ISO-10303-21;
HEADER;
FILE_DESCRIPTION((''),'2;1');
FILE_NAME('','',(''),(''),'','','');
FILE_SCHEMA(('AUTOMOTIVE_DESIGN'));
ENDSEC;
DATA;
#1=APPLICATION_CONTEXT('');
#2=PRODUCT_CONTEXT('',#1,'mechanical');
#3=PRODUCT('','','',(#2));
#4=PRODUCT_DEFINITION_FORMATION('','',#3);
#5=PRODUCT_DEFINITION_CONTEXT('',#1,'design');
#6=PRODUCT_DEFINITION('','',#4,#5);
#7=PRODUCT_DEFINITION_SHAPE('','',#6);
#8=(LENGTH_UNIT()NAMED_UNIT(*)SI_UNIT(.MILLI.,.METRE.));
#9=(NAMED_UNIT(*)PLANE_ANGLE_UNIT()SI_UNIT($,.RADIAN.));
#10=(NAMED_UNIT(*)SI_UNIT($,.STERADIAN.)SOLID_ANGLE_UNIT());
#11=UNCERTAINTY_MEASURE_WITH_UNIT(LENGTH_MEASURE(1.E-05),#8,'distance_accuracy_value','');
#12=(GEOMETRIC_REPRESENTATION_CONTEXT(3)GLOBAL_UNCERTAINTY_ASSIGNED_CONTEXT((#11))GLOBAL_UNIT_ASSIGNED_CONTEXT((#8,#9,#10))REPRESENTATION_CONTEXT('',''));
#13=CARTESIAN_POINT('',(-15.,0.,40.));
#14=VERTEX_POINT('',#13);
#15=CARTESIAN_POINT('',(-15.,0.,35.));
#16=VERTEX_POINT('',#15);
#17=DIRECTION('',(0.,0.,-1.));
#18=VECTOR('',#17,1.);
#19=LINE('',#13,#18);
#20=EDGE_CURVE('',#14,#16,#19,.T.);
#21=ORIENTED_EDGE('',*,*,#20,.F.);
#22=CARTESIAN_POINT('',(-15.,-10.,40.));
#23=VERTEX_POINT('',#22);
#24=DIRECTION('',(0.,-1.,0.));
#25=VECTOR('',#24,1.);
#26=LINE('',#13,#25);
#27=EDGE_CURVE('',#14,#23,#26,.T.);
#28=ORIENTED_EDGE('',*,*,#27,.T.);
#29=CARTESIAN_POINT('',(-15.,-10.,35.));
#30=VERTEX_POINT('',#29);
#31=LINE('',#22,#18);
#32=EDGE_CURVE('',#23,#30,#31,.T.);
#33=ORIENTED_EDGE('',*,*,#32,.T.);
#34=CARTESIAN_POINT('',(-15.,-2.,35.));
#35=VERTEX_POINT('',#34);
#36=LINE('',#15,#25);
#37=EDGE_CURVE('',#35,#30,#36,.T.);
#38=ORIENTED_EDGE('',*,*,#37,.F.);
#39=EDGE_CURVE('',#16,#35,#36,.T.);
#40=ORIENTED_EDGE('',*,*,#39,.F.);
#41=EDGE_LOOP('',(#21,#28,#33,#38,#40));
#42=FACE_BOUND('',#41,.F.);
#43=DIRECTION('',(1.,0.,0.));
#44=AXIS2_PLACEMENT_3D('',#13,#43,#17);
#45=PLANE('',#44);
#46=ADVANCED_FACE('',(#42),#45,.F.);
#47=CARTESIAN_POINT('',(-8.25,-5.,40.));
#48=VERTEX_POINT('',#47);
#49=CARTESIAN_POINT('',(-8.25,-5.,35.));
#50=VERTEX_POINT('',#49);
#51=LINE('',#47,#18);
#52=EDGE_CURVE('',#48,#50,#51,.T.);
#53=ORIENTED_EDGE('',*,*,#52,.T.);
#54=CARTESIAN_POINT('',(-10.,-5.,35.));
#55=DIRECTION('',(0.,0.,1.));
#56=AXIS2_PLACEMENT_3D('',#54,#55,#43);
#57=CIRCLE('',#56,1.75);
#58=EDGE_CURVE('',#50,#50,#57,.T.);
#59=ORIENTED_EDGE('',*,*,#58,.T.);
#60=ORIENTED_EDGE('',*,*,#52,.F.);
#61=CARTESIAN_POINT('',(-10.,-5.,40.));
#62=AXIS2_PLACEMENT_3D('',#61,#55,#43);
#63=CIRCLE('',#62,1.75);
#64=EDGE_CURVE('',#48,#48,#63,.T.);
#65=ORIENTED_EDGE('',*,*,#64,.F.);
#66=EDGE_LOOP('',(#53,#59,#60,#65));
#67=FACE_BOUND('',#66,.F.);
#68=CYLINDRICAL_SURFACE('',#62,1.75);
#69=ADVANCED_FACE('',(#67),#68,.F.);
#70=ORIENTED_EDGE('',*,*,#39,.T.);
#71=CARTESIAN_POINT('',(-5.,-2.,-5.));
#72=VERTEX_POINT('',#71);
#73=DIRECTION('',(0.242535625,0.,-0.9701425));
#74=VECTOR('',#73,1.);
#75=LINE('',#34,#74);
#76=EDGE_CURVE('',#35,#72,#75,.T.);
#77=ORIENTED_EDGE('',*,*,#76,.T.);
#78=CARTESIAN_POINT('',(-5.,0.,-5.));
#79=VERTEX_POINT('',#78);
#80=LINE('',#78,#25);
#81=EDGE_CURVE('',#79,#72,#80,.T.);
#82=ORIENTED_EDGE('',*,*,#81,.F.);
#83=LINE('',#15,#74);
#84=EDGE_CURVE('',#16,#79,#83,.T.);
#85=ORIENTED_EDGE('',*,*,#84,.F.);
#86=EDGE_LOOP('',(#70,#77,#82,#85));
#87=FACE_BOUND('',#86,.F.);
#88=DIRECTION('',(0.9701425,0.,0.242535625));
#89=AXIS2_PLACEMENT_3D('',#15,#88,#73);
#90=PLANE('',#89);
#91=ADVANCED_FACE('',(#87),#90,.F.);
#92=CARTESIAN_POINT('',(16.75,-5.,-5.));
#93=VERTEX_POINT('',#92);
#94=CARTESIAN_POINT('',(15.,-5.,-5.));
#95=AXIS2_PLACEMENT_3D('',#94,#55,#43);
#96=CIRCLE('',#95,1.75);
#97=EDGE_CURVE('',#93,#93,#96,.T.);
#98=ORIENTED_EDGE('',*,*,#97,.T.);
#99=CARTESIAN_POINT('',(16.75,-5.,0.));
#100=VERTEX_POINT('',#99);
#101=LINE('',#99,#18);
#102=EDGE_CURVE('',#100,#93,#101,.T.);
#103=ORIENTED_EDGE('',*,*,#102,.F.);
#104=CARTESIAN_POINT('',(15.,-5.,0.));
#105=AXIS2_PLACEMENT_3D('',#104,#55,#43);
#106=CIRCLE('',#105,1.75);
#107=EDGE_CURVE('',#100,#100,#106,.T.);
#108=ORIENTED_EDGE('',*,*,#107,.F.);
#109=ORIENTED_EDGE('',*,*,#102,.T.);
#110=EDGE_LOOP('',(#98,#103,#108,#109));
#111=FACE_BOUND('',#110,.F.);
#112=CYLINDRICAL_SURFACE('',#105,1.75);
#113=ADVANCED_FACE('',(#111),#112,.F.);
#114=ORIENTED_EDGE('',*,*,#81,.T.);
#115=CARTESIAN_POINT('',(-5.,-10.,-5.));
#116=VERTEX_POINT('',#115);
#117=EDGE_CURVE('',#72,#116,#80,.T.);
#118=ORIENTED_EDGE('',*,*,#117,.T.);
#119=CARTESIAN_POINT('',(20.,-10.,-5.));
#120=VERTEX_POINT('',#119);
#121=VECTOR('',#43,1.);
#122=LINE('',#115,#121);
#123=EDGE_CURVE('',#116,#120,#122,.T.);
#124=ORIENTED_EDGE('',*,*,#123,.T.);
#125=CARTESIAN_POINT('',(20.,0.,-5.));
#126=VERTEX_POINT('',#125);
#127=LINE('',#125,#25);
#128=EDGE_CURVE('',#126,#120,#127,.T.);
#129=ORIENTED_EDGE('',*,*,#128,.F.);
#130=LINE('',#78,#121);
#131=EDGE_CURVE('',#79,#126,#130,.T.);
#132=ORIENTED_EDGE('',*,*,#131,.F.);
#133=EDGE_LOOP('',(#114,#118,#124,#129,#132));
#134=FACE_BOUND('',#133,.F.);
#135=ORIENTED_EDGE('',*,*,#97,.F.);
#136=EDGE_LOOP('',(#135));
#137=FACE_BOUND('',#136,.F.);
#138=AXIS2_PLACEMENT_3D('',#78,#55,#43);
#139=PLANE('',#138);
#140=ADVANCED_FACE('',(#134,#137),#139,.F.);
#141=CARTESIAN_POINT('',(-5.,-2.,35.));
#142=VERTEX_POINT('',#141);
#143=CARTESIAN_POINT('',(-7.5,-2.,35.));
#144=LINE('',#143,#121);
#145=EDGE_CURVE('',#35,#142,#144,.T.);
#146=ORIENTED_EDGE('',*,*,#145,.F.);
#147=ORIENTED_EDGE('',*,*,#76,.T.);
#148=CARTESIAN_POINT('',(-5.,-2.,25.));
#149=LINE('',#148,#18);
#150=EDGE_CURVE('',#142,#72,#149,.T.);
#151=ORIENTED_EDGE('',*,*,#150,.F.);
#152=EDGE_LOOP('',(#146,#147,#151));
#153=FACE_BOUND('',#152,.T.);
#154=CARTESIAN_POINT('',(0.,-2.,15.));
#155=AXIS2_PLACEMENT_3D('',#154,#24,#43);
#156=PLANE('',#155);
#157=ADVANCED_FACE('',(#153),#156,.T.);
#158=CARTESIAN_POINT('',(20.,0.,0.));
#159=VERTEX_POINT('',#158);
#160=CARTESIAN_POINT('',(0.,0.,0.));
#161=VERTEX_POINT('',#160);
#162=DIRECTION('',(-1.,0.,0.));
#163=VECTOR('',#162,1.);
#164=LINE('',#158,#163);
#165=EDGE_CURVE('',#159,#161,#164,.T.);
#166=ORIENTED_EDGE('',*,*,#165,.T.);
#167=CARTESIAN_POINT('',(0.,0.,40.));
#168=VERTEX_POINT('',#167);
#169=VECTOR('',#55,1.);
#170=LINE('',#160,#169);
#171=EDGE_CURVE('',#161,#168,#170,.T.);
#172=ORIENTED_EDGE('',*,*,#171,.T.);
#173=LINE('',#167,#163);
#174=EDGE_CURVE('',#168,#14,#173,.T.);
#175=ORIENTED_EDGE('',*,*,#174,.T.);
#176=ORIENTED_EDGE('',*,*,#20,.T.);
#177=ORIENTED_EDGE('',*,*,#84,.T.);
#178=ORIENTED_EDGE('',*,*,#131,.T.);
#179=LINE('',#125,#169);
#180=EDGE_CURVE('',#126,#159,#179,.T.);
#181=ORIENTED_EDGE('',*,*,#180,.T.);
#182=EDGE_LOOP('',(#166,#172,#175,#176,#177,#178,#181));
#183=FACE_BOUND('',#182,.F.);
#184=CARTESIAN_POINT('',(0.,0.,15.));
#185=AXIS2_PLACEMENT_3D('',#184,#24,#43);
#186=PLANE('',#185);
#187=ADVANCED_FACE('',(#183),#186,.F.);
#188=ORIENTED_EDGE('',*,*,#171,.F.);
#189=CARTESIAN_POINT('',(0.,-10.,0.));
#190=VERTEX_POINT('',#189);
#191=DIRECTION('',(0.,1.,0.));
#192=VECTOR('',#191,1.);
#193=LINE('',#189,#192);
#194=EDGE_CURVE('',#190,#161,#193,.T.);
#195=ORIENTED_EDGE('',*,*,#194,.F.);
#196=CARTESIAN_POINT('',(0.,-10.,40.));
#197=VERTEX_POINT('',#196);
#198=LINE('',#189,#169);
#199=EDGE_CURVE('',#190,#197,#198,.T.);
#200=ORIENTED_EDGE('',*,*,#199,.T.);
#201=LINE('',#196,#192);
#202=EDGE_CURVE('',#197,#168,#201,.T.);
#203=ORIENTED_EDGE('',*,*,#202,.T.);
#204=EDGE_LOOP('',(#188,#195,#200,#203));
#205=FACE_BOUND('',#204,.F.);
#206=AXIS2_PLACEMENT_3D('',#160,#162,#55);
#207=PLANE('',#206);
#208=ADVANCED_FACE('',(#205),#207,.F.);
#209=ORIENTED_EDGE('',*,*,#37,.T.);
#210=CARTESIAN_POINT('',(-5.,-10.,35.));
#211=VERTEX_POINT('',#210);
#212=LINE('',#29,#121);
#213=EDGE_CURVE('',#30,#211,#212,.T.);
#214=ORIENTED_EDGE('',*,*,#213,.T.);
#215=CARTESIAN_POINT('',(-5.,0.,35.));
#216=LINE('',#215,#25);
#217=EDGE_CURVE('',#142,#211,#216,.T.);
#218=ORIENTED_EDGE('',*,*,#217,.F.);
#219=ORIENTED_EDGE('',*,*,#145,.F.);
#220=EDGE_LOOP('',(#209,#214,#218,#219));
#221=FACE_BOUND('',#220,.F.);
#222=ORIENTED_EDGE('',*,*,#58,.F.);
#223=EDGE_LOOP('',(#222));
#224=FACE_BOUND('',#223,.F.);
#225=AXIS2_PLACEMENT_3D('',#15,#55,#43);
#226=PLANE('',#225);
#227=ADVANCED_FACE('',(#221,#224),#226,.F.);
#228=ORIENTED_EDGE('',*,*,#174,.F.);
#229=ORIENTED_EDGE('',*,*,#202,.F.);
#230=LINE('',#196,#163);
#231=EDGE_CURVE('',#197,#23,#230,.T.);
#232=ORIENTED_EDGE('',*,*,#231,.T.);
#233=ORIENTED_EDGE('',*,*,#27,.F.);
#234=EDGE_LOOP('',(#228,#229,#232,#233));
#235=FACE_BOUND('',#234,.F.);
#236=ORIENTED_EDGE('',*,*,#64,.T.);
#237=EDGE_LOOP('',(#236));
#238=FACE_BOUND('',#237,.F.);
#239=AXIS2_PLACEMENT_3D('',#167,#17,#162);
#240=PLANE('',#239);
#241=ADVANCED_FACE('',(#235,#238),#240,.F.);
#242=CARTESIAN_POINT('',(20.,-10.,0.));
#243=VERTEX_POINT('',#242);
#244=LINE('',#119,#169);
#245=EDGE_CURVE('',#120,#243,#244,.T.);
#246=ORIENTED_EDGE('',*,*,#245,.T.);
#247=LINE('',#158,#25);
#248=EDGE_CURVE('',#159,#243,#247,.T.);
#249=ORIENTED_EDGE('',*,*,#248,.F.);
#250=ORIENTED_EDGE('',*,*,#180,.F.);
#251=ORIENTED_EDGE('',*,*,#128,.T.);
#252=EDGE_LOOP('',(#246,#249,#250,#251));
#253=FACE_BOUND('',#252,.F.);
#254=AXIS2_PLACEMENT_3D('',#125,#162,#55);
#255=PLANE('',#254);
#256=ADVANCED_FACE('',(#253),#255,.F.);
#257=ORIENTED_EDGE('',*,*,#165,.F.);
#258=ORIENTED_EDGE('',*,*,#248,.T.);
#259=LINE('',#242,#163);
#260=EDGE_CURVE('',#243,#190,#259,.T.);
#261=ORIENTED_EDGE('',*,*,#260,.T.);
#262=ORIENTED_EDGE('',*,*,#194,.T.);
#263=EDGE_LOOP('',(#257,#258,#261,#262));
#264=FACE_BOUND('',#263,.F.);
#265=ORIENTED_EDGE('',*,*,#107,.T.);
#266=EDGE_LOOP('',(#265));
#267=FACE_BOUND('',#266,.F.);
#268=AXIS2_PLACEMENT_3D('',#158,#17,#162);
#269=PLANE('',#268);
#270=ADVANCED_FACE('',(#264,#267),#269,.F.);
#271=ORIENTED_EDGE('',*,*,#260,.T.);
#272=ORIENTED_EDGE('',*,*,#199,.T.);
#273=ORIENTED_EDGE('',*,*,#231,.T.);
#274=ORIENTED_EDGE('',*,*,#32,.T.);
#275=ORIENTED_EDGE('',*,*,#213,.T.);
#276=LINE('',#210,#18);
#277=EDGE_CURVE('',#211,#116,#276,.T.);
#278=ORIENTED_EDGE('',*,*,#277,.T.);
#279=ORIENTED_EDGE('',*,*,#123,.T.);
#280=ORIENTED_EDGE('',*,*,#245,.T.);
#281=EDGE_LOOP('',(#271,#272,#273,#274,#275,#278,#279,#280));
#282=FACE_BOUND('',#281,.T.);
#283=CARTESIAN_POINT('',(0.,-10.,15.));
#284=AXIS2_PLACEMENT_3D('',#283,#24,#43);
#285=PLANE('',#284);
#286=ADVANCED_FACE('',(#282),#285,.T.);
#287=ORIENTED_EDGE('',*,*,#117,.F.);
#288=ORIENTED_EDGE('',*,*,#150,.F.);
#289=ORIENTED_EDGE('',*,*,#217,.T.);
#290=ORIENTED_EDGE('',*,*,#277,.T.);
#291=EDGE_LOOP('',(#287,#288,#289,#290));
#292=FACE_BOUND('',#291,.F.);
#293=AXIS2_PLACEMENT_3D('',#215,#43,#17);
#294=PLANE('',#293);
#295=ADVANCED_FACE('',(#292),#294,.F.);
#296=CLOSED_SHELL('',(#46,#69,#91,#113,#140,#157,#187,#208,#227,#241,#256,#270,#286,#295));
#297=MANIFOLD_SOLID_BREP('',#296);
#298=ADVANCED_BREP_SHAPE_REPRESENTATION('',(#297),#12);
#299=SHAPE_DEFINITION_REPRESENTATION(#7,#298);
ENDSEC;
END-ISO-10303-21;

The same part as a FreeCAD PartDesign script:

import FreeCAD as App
import Part
import Sketcher


def add_polygon(sketch, points):
    """Adds a closed chain of lines whose ends are joined by coincident constraints."""
    first, n = sketch.GeometryCount, len(points)
    for a, b in zip(points, points[1:] + points[:1]):
        sketch.addGeometry(Part.LineSegment(App.Vector(*a, 0), App.Vector(*b, 0)), False)
    for i in range(n):
        sketch.addConstraint(Sketcher.Constraint("Coincident", first + i, 2, first + (i + 1) % n, 1))

doc = App.newDocument("Part")
params = doc.addObject("Spreadsheet::Sheet", "Params")
for row, (alias, value) in enumerate([
    ("sketch1_width", "15 mm"),
    ("sketch1_width2", "10 mm"),
    ("sketch1_width3", "25 mm"),
    ("sketch1_height", "5 mm"),
    ("sketch1_height2", "40 mm"),
    ("pad1_length", "10 mm"),
    ("sketch2_width", "15 mm"),
    ("sketch2_width2", "25 mm"),
    ("sketch2_width3", "20 mm"),
    ("sketch2_height", "5 mm"),
    ("sketch2_height2", "40 mm"),
    ("pad2_length", "2 mm"),
    ("sketch3_diameter", "3.5 mm"),
    ("pocket1_length", "5 mm"),
    ("sketch4_diameter", "3.5 mm"),
    ("pocket2_length", "5 mm"),
], start=1):
    params.set(f"A{row}", alias)
    params.set(f"B{row}", "=" + value)
    params.setAlias(f"B{row}", alias)

body = doc.addObject("PartDesign::Body", "Body")

# Sketch on XZ plane
sketch1 = doc.addObject("Sketcher::SketchObject", "Sketch")
body.addObject(sketch1)
sketch1.AttachmentSupport = (doc.XZ_Plane, [""])
sketch1.MapMode = "FlatFace"
add_polygon(sketch1, [(0, 40), (-15, 40), (-15, 35), (-5, 35), (-5, -5), (20, -5), (20, 0), (0, 0)])  # lines 0-7
sketch1.addConstraint(Sketcher.Constraint("Horizontal", 0))
sketch1.addConstraint(Sketcher.Constraint("Vertical", 1))
sketch1.addConstraint(Sketcher.Constraint("Horizontal", 2))
sketch1.addConstraint(Sketcher.Constraint("Vertical", 3))
sketch1.addConstraint(Sketcher.Constraint("Horizontal", 4))
sketch1.addConstraint(Sketcher.Constraint("Vertical", 5))
sketch1.addConstraint(Sketcher.Constraint("Horizontal", 6))
sketch1.addConstraint(Sketcher.Constraint("Vertical", 7))
sketch1.addConstraint(Sketcher.Constraint("Coincident", 6, 2, -1, 1))
sketch1.addConstraint(Sketcher.Constraint("Equal", 1, 5))
sketch1.addConstraint(Sketcher.Constraint("DistanceX", 0, 2, 0, 1, 15.0))
sketch1.addConstraint(Sketcher.Constraint("DistanceX", 2, 1, 2, 2, 10.0))
sketch1.addConstraint(Sketcher.Constraint("DistanceX", 4, 1, 4, 2, 25.0))
sketch1.addConstraint(Sketcher.Constraint("DistanceY", 1, 2, 1, 1, 5.0))
sketch1.addConstraint(Sketcher.Constraint("DistanceY", 3, 2, 3, 1, 40.0))
sketch1.setExpression("Constraints[18]", "Params.sketch1_width")
sketch1.setExpression("Constraints[19]", "Params.sketch1_width2")
sketch1.setExpression("Constraints[20]", "Params.sketch1_width3")
sketch1.setExpression("Constraints[21]", "Params.sketch1_height")
sketch1.setExpression("Constraints[22]", "Params.sketch1_height2")
pad1 = doc.addObject("PartDesign::Pad", "Pad")
body.addObject(pad1)
pad1.Profile = sketch1
pad1.setExpression("Length", "Params.pad1_length")

# Sketch on XZ plane
sketch2 = doc.addObject("Sketcher::SketchObject", "Sketch001")
body.addObject(sketch2)
sketch2.AttachmentSupport = (doc.XZ_Plane, [""])
sketch2.MapMode = "FlatFace"
add_polygon(sketch2, [(0, 40), (-15, 40), (-15, 35), (-5, -5), (20, -5), (20, 0), (0, 0)])  # lines 0-6
sketch2.addConstraint(Sketcher.Constraint("Horizontal", 0))
sketch2.addConstraint(Sketcher.Constraint("Vertical", 1))
sketch2.addConstraint(Sketcher.Constraint("Horizontal", 3))
sketch2.addConstraint(Sketcher.Constraint("Vertical", 4))
sketch2.addConstraint(Sketcher.Constraint("Horizontal", 5))
sketch2.addConstraint(Sketcher.Constraint("Vertical", 6))
sketch2.addConstraint(Sketcher.Constraint("Coincident", 5, 2, -1, 1))
sketch2.addConstraint(Sketcher.Constraint("Equal", 1, 4))
sketch2.addConstraint(Sketcher.Constraint("DistanceX", 0, 2, 0, 1, 15.0))
sketch2.addConstraint(Sketcher.Constraint("DistanceX", 3, 1, 3, 2, 25.0))
sketch2.addConstraint(Sketcher.Constraint("DistanceX", 5, 2, 5, 1, 20.0))
sketch2.addConstraint(Sketcher.Constraint("DistanceY", 1, 2, 1, 1, 5.0))
sketch2.addConstraint(Sketcher.Constraint("DistanceY", 6, 1, 6, 2, 40.0))
sketch2.setExpression("Constraints[15]", "Params.sketch2_width")
sketch2.setExpression("Constraints[16]", "Params.sketch2_width2")
sketch2.setExpression("Constraints[17]", "Params.sketch2_width3")
sketch2.setExpression("Constraints[18]", "Params.sketch2_height")
sketch2.setExpression("Constraints[19]", "Params.sketch2_height2")
pad2 = doc.addObject("PartDesign::Pad", "Pad001")
body.addObject(pad2)
pad2.Profile = sketch2
pad2.setExpression("Length", "Params.pad2_length")

# Sketch on XY plane
sketch3 = doc.addObject("Sketcher::SketchObject", "Sketch002")
body.addObject(sketch3)
sketch3.AttachmentSupport = (doc.XY_Plane, [""])
sketch3.MapMode = "FlatFace"
sketch3.AttachmentOffset = App.Placement(App.Vector(0, 0, 40), App.Rotation())
sketch3.addGeometry(Part.Circle(App.Vector(-10, -5, 0), App.Vector(0, 0, 1), 1.8), False)
sketch3.addConstraint(Sketcher.Constraint("Diameter", 0, 3.5))
sketch3.addConstraint(Sketcher.Constraint("DistanceX", 0, 3, -1, 1, 10.0))
sketch3.addConstraint(Sketcher.Constraint("DistanceY", 0, 3, -1, 1, 5.0))
sketch3.setExpression("Constraints[0]", "Params.sketch3_diameter")
pocket1 = doc.addObject("PartDesign::Pocket", "Pocket")
body.addObject(pocket1)
pocket1.Profile = sketch3
pocket1.setExpression("Length", "Params.pocket1_length")

# Sketch on XY plane
sketch4 = doc.addObject("Sketcher::SketchObject", "Sketch003")
body.addObject(sketch4)
sketch4.AttachmentSupport = (doc.XY_Plane, [""])
sketch4.MapMode = "FlatFace"
sketch4.addGeometry(Part.Circle(App.Vector(15, -5, 0), App.Vector(0, 0, 1), 1.8), False)
sketch4.addConstraint(Sketcher.Constraint("Diameter", 0, 3.5))
sketch4.addConstraint(Sketcher.Constraint("DistanceX", -1, 1, 0, 3, 15.0))
sketch4.addConstraint(Sketcher.Constraint("DistanceY", 0, 3, -1, 1, 5.0))
sketch4.setExpression("Constraints[0]", "Params.sketch4_diameter")
pocket2 = doc.addObject("PartDesign::Pocket", "Pocket001")
body.addObject(pocket2)
pocket2.Profile = sketch4
pocket2.setExpression("Length", "Params.pocket2_length")

doc.recompute()
